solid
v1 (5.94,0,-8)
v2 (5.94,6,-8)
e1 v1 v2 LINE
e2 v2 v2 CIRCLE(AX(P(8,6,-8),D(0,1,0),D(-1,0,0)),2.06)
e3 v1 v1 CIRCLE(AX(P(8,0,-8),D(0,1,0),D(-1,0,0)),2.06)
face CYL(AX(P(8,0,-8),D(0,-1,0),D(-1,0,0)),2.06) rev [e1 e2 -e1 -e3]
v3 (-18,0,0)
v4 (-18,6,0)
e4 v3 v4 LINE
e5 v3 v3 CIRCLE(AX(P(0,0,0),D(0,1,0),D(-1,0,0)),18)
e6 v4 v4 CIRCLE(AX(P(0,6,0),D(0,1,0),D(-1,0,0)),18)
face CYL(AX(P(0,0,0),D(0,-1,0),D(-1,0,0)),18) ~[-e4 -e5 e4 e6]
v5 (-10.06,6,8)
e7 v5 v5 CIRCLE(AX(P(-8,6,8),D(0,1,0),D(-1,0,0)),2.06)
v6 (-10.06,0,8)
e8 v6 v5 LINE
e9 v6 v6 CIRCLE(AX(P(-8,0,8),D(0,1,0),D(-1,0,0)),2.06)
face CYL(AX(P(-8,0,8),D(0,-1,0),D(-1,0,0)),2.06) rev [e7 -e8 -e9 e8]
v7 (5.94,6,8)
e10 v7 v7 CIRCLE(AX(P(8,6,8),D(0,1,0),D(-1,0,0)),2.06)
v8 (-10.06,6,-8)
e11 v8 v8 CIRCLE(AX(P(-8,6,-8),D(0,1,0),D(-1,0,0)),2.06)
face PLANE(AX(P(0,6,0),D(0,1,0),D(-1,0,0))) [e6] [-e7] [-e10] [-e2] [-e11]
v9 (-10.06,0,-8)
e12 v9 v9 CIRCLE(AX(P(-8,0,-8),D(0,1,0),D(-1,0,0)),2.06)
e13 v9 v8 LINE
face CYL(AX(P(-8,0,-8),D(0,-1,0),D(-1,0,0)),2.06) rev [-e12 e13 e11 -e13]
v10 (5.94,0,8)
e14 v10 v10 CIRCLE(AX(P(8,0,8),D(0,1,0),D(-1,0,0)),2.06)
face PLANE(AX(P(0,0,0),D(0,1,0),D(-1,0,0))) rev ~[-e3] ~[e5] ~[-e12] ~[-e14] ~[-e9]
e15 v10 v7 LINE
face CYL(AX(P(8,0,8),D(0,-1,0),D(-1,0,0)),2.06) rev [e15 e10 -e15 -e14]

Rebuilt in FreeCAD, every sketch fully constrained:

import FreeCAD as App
import Part
import Sketcher
from FreeCAD import Vector
Q = App.Units.Quantity

doc = App.newDocument("Part")
params = doc.addObject("Spreadsheet::Sheet", "Params")
for row, (alias, value) in enumerate([
    ("sketch1_diameter", "36 mm"),
    ("sketch1_diameter2", "4.12 mm"),
    ("pad1_length", "6 mm"),
], start=1):
    params.set(f"A{row}", alias)
    params.set(f"B{row}", "=" + value)
    params.setAlias(f"B{row}", alias)

body = doc.addObject("PartDesign::Body", "Body")

# Sketch on XZ plane
sketch1 = body.newObject("Sketcher::SketchObject", "Sketch")
sketch1.AttachmentSupport = (doc.getObject("XZ_Plane"), [""])
sketch1.MapMode = "FlatFace"
sketch1.addGeometry([
    Part.Circle(Vector(0, 0, 0), Vector(0, 0, 1), 18),  # 0
    Part.Circle(Vector(8, -8, 0), Vector(0, 0, 1), 2.1),  # 1
    Part.Circle(Vector(-8, -8, 0), Vector(0, 0, 1), 2.1),  # 2
    Part.Circle(Vector(8, 8, 0), Vector(0, 0, 1), 2.1),  # 3
    Part.Circle(Vector(-8, 8, 0), Vector(0, 0, 1), 2.1),  # 4
], False)
sketch1.addConstraint([
    Sketcher.Constraint("Coincident", 0, 3, -1, 1),
    Sketcher.Constraint("Equal", 1, 2),
    Sketcher.Constraint("Equal", 2, 3),
    Sketcher.Constraint("Equal", 3, 4),
    Sketcher.Constraint("Symmetric", 2, 3, 3, 3, -1, 1),
    Sketcher.Constraint("Symmetric", 1, 3, 4, 3, -1, 1),
    Sketcher.Constraint("Symmetric", 1, 3, 2, 3, -2),
    Sketcher.Constraint("Diameter", 0, Q("36 mm")),
    Sketcher.Constraint("Diameter", 1, Q("4.12 mm")),
    Sketcher.Constraint("DistanceX", -1, 1, 1, 3, Q("8 mm")),
    Sketcher.Constraint("DistanceY", 1, 3, -1, 1, Q("8 mm")),
])
sketch1.setExpression("Constraints[7]", "Params.sketch1_diameter")
sketch1.setExpression("Constraints[8]", "Params.sketch1_diameter2")
pad1 = body.newObject("PartDesign::Pad", "Pad")
pad1.Profile = sketch1
pad1.setExpression("Length", "Params.pad1_length")
pad1.Reversed = True

doc.recompute()
